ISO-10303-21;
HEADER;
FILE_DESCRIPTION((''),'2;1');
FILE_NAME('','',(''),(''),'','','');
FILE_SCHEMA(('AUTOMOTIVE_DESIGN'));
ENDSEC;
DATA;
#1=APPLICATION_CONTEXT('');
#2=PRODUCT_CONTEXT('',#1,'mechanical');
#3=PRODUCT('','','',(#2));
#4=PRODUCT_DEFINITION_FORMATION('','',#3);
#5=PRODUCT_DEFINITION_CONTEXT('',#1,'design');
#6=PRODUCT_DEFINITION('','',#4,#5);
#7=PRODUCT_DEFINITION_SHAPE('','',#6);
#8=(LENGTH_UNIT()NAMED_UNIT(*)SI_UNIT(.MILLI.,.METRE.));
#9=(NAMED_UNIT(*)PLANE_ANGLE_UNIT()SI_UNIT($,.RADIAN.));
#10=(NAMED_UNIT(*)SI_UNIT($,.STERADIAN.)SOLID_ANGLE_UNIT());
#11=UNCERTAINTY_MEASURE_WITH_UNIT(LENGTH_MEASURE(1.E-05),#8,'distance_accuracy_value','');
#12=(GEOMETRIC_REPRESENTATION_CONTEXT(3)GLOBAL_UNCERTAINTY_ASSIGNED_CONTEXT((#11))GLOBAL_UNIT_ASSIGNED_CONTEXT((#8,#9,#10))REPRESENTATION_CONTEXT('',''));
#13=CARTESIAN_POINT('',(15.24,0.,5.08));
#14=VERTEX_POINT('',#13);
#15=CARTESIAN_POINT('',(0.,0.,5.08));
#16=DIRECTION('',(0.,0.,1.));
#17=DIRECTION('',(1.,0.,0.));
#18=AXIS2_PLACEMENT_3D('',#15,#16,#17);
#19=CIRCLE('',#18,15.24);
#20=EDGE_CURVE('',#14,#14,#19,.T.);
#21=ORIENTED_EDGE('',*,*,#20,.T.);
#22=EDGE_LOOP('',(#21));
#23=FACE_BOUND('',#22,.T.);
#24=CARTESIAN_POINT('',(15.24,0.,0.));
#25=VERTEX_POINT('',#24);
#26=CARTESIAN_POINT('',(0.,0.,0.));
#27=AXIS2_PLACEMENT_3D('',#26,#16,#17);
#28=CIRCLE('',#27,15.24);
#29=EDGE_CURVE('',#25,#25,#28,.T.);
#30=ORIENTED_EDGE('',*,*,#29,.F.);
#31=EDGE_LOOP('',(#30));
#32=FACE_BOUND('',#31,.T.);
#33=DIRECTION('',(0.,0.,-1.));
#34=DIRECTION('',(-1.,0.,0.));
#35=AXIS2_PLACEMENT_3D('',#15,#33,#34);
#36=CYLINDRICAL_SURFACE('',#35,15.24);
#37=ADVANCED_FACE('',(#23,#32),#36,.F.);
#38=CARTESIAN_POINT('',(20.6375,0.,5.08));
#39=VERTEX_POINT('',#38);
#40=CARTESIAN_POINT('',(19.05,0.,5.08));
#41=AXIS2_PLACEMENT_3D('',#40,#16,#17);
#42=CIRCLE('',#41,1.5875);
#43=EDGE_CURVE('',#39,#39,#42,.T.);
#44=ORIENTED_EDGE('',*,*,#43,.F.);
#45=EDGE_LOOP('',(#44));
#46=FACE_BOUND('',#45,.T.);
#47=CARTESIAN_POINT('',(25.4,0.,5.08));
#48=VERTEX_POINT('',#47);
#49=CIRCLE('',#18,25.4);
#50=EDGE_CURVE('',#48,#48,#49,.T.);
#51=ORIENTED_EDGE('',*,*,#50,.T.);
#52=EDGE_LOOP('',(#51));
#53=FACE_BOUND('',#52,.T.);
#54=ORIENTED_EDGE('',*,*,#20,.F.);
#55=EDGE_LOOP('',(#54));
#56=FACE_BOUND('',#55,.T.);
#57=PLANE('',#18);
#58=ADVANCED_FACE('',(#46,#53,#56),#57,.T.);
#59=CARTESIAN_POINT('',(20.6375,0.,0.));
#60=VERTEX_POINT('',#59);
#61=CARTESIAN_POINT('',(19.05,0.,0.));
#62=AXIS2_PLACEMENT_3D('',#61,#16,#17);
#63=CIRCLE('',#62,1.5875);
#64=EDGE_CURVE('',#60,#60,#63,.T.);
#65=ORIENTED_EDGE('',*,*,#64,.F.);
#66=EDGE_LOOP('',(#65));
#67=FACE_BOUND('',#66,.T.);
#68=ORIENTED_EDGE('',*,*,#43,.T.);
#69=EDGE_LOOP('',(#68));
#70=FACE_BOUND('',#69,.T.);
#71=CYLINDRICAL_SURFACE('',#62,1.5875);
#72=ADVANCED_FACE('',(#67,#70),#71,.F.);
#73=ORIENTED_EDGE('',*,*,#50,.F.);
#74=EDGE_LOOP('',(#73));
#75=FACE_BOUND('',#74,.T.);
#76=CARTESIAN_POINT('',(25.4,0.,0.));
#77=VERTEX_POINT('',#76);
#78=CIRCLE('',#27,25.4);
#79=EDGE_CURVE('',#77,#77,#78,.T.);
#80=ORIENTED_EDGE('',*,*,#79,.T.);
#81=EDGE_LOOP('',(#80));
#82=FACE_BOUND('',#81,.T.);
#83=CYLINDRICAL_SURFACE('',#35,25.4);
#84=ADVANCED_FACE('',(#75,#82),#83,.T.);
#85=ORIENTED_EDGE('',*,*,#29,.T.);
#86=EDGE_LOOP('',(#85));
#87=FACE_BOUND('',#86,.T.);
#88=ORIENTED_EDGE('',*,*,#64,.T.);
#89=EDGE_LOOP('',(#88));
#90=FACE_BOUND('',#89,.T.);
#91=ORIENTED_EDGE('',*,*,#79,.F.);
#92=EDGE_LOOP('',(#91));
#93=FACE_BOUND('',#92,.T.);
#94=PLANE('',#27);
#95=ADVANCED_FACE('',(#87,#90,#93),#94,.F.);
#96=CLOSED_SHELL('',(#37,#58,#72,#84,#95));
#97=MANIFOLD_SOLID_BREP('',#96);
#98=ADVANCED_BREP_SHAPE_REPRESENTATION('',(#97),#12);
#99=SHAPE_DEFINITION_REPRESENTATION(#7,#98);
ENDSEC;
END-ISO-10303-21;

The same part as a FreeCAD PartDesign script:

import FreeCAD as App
import Part
import Sketcher

V = App.Vector
Q = App.Units.Quantity

doc = App.newDocument("Part")
body = doc.addObject("PartDesign::Body", "Body")

# Sketch on XY plane
sketch1 = doc.addObject("Sketcher::SketchObject", "Sketch")
body.addObject(sketch1)
sketch1.AttachmentSupport = (doc.XY_Plane, [""])
sketch1.MapMode = "FlatFace"
sketch1.addGeometry(Part.Circle(V(0, 0, 0), V(0, 0, 1), 25), False)
sketch1.addGeometry(Part.Circle(V(0, 0, 0), V(0, 0, 1), 15), False)
sketch1.addConstraint(Sketcher.Constraint("Coincident", 0, 3, -1, 1))
sketch1.addConstraint(Sketcher.Constraint("Coincident", 1, 3, -1, 1))
sketch1.addConstraint(Sketcher.Constraint("Diameter", 0, Q("2 in")))
sketch1.addConstraint(Sketcher.Constraint("Diameter", 1, Q("1.2 in")))
pad1 = doc.addObject("PartDesign::Pad", "Pad")
body.addObject(pad1)
pad1.Profile = sketch1
pad1.Length = Q("0.2 in")

# Sketch on XY plane
sketch2 = doc.addObject("Sketcher::SketchObject", "Sketch001")
body.addObject(sketch2)
sketch2.AttachmentSupport = (doc.XY_Plane, [""])
sketch2.MapMode = "FlatFace"
sketch2.AttachmentOffset = App.Placement(V(0, 0, 0.2 * 25.4), App.Rotation())
sketch2.addGeometry(Part.Circle(V(19.1, 0, 0), V(0, 0, 1), 1.6), False)
sketch2.addConstraint(Sketcher.Constraint("PointOnObject", 0, 3, -1))
sketch2.addConstraint(Sketcher.Constraint("Diameter", 0, Q("0.125 in")))
sketch2.addConstraint(Sketcher.Constraint("DistanceX", -1, 1, 0, 3, Q("0.75 in")))
pocket1 = doc.addObject("PartDesign::Pocket", "Pocket")
body.addObject(pocket1)
pocket1.Profile = sketch2
pocket1.Type = "ThroughAll"

doc.recompute()
